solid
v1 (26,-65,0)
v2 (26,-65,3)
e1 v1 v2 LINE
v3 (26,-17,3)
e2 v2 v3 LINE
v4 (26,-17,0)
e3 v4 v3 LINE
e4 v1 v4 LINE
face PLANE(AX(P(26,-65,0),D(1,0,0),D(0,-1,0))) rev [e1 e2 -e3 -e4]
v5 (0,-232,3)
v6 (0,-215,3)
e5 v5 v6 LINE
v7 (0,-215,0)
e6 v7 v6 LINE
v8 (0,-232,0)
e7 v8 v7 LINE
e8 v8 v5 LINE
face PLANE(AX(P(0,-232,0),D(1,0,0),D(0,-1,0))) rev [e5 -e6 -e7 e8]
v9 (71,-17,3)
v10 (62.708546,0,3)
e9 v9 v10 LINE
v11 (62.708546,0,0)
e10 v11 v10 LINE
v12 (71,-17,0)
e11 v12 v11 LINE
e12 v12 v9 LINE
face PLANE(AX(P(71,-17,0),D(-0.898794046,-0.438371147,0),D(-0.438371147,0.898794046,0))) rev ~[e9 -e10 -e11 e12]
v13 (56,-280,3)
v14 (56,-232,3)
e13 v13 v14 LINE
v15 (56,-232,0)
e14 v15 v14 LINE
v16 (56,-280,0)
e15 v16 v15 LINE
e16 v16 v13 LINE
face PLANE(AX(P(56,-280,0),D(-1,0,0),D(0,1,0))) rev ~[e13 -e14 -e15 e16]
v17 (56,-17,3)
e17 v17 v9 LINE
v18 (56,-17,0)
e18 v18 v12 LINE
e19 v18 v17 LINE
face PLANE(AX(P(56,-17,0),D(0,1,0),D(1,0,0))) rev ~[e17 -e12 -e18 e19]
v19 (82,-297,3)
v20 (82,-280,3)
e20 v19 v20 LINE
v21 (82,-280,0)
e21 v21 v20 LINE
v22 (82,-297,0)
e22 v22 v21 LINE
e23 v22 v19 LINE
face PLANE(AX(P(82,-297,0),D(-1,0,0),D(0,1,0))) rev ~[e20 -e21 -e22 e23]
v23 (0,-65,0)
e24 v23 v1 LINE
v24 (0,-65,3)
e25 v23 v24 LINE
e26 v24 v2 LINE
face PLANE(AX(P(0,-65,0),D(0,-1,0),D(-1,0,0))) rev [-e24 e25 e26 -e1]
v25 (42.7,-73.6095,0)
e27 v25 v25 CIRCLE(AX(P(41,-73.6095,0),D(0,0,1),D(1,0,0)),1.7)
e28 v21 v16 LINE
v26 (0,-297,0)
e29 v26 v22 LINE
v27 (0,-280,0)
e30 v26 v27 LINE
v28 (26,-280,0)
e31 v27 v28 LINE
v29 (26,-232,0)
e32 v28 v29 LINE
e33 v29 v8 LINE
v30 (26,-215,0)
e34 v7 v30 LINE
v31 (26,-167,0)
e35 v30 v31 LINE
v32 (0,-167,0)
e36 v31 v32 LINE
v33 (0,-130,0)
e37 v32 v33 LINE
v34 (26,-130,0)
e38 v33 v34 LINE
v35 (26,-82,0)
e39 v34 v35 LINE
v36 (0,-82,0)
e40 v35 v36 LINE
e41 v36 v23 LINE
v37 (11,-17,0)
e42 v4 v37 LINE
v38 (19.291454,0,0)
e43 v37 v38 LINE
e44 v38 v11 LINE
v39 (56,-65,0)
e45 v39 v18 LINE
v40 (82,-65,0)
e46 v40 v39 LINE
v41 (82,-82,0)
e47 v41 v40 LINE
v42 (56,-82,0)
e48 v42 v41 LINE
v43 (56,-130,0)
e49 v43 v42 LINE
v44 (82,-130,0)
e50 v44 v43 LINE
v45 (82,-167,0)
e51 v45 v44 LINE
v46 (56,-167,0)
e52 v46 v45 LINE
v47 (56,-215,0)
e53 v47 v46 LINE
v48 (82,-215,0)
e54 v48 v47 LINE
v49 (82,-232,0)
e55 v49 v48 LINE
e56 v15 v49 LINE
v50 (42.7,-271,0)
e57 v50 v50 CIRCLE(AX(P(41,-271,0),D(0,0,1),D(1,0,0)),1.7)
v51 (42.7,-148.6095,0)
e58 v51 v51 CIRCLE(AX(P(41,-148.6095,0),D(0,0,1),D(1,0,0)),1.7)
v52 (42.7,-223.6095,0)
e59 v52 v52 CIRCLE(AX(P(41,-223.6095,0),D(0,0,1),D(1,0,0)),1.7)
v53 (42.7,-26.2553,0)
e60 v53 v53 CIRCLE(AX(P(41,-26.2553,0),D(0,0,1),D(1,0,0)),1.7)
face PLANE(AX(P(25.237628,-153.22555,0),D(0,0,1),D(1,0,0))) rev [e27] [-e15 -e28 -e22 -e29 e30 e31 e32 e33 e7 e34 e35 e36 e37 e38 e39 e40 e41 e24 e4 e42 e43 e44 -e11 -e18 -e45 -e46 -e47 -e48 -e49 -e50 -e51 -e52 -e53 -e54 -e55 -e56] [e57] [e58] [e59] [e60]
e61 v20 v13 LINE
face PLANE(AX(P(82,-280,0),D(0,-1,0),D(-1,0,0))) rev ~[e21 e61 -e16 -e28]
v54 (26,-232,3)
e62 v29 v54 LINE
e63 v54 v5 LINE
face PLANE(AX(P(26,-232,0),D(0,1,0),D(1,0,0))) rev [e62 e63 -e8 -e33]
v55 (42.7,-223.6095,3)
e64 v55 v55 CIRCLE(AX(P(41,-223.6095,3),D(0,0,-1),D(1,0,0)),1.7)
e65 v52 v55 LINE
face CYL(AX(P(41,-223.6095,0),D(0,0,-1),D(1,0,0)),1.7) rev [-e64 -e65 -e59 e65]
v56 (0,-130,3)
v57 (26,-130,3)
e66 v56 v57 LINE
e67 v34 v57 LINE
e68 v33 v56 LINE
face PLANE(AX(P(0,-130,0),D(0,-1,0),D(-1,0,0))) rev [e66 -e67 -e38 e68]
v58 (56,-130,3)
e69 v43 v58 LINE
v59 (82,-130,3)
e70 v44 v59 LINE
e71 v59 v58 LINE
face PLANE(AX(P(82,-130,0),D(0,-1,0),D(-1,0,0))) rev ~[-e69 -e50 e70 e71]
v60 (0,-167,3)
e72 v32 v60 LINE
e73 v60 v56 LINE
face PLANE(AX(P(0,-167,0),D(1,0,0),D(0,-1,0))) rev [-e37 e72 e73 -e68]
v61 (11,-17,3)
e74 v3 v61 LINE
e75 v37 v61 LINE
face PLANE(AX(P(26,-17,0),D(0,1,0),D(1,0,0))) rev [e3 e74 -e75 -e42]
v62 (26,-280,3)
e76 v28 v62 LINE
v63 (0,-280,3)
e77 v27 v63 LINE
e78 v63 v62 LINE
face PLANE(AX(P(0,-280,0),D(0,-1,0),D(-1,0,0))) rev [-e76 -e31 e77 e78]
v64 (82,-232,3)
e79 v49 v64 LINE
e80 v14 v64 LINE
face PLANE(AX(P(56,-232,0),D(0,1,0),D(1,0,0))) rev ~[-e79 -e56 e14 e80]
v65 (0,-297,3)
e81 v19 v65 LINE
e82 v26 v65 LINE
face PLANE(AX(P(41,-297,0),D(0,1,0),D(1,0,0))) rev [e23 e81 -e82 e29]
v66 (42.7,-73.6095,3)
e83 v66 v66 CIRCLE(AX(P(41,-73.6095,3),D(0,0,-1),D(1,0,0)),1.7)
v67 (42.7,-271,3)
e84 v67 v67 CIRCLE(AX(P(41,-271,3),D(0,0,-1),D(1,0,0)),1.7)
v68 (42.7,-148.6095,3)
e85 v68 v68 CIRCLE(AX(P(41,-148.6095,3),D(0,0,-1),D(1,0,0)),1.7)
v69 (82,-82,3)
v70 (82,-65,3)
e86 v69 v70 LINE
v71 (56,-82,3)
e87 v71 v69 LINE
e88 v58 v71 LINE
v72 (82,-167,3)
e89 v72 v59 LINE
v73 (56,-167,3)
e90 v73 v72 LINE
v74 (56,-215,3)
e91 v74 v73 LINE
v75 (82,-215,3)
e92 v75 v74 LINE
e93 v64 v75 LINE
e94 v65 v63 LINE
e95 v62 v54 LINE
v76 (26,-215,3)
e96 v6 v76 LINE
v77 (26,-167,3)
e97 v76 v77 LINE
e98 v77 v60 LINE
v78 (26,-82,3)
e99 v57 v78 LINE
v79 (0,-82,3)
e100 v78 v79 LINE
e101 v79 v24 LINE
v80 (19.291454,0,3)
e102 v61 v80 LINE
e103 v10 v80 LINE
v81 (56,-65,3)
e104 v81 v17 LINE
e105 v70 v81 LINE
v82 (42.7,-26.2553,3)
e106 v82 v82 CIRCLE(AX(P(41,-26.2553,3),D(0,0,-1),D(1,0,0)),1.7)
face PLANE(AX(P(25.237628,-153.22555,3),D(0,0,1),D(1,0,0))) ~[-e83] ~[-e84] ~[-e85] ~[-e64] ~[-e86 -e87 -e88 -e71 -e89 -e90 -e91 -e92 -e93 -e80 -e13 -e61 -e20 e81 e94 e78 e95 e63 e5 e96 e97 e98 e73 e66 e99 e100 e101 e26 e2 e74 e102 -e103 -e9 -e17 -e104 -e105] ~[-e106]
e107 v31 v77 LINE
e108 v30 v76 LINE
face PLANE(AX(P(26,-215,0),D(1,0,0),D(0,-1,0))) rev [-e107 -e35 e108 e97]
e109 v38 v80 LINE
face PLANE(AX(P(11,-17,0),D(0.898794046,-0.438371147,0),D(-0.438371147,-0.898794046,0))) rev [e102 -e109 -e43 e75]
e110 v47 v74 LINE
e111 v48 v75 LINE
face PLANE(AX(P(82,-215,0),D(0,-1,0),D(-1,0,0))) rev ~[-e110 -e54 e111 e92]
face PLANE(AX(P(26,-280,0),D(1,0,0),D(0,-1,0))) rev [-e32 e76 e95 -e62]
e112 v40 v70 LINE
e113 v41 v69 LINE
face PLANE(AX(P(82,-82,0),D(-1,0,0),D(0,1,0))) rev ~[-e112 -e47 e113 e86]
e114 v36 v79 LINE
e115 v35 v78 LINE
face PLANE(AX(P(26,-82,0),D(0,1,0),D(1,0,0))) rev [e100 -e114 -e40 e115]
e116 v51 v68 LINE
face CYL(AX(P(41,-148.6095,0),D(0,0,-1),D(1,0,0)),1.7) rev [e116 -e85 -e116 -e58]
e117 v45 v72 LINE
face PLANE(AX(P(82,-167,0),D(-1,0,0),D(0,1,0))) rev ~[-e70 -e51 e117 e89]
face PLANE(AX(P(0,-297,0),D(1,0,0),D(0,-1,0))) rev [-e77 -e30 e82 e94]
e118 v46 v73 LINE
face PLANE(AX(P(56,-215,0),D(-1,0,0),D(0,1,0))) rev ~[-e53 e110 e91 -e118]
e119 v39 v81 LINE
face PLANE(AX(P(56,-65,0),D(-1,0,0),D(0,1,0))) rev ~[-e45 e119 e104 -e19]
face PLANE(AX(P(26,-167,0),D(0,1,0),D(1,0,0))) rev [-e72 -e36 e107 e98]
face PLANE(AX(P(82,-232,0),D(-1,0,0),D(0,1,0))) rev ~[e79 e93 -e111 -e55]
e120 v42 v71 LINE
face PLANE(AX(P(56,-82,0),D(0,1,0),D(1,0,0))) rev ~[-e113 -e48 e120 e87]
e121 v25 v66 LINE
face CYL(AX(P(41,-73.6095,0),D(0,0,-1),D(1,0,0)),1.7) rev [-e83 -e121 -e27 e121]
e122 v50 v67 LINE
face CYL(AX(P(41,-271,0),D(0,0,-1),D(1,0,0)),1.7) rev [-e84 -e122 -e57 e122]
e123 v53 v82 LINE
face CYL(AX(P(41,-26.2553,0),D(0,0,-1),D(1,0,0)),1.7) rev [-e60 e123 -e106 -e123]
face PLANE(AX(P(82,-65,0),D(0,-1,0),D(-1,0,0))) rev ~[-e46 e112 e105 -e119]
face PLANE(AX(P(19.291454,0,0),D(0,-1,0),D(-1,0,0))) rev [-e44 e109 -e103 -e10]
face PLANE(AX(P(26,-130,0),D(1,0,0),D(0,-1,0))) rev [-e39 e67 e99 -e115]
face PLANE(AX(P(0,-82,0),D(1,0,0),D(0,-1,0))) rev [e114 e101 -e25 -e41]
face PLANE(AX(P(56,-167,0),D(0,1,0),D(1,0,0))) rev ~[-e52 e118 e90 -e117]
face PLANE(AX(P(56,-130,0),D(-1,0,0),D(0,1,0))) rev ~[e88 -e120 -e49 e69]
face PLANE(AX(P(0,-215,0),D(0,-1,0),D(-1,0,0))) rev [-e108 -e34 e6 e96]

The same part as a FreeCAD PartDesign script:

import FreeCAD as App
import Part
import Sketcher

V = App.Vector
Q = App.Units.Quantity

doc = App.newDocument("Part")
body = doc.addObject("PartDesign::Body", "Body")

# Sketch on XY plane
sketch1 = body.newObject("Sketcher::SketchObject", "Sketch")
sketch1.AttachmentSupport = (doc.getObject("XY_Plane"), [""])
sketch1.MapMode = "FlatFace"
sketch1.addGeometry([
    Part.LineSegment(V(0, 33, 0), V(41, 33, 0)),  # 0
    Part.LineSegment(V(41, 33, 0), V(41, 50, 0)),  # 1
    Part.LineSegment(V(41, 50, 0), V(15, 50, 0)),  # 2
    Part.LineSegment(V(15, 50, 0), V(15, 98, 0)),  # 3
    Part.LineSegment(V(15, 98, 0), V(41, 98, 0)),  # 4
    Part.LineSegment(V(41, 98, 0), V(41, 115, 0)),  # 5
    Part.LineSegment(V(41, 115, 0), V(15, 115, 0)),  # 6
    Part.LineSegment(V(15, 115, 0), V(15, 163, 0)),  # 7
    Part.LineSegment(V(15, 163, 0), V(41, 163, 0)),  # 8
    Part.LineSegment(V(41, 163, 0), V(41, 200, 0)),  # 9
    Part.LineSegment(V(41, 200, 0), V(15, 200, 0)),  # 10
    Part.LineSegment(V(15, 200, 0), V(15, 248, 0)),  # 11
    Part.LineSegment(V(15, 248, 0), V(41, 248, 0)),  # 12
    Part.LineSegment(V(41, 248, 0), V(41, 265, 0)),  # 13
    Part.LineSegment(V(41, 265, 0), V(15, 265, 0)),  # 14
    Part.LineSegment(V(15, 265, 0), V(15, 313, 0)),  # 15
    Part.LineSegment(V(15, 313, 0), V(30, 313, 0)),  # 16
    Part.LineSegment(V(30, 313, 0), V(22, 330, 0)),  # 17
    Part.LineSegment(V(22, 330, 0), V(0, 330, 0)),  # 18
    Part.LineSegment(V(0, 330, 0), V(0, 33, 0)),  # 19
], False)
sketch1.addConstraint([
    Sketcher.Constraint("Coincident", 0, 2, 1, 1),
    Sketcher.Constraint("Coincident", 1, 2, 2, 1),
    Sketcher.Constraint("Coincident", 2, 2, 3, 1),
    Sketcher.Constraint("Coincident", 3, 2, 4, 1),
    Sketcher.Constraint("Coincident", 4, 2, 5, 1),
    Sketcher.Constraint("Coincident", 5, 2, 6, 1),
    Sketcher.Constraint("Coincident", 6, 2, 7, 1),
    Sketcher.Constraint("Coincident", 7, 2, 8, 1),
    Sketcher.Constraint("Coincident", 8, 2, 9, 1),
    Sketcher.Constraint("Coincident", 9, 2, 10, 1),
    Sketcher.Constraint("Coincident", 10, 2, 11, 1),
    Sketcher.Constraint("Coincident", 11, 2, 12, 1),
    Sketcher.Constraint("Coincident", 12, 2, 13, 1),
    Sketcher.Constraint("Coincident", 13, 2, 14, 1),
    Sketcher.Constraint("Coincident", 14, 2, 15, 1),
    Sketcher.Constraint("Coincident", 15, 2, 16, 1),
    Sketcher.Constraint("Coincident", 16, 2, 17, 1),
    Sketcher.Constraint("Coincident", 17, 2, 18, 1),
    Sketcher.Constraint("Coincident", 18, 2, 19, 1),
    Sketcher.Constraint("Coincident", 19, 2, 0, 1),
    Sketcher.Constraint("Horizontal", 0),
    Sketcher.Constraint("Vertical", 1),
    Sketcher.Constraint("Horizontal", 2),
    Sketcher.Constraint("Vertical", 3),
    Sketcher.Constraint("Horizontal", 4),
    Sketcher.Constraint("Vertical", 5),
    Sketcher.Constraint("Horizontal", 6),
    Sketcher.Constraint("Vertical", 7),
    Sketcher.Constraint("Horizontal", 8),
    Sketcher.Constraint("Vertical", 9),
    Sketcher.Constraint("Horizontal", 10),
    Sketcher.Constraint("Vertical", 11),
    Sketcher.Constraint("Horizontal", 12),
    Sketcher.Constraint("Vertical", 13),
    Sketcher.Constraint("Horizontal", 14),
    Sketcher.Constraint("Vertical", 15),
    Sketcher.Constraint("Horizontal", 16),
    Sketcher.Constraint("Horizontal", 18),
    Sketcher.Constraint("Vertical", 19),
    Sketcher.Constraint("PointOnObject", 18, 2, -2),
    Sketcher.Constraint("Vertical", 1, 2, 4, 2),
    Sketcher.Constraint("Vertical", 3, 2, 6, 2),
    Sketcher.Constraint("Vertical", 5, 2, 8, 2),
    Sketcher.Constraint("Vertical", 7, 2, 10, 2),
    Sketcher.Constraint("Vertical", 9, 2, 12, 2),
    Sketcher.Constraint("Vertical", 11, 2, 14, 2),
    Sketcher.Constraint("Equal", 1, 5),
    Sketcher.Constraint("Equal", 3, 7),
    Sketcher.Constraint("Equal", 7, 11),
    Sketcher.Constraint("Equal", 5, 13),
    Sketcher.Constraint("Equal", 11, 15),
    Sketcher.Constraint("DistanceX", 0, 1, 0, 2, Q("41 mm")),
    Sketcher.Constraint("DistanceX", 2, 2, 2, 1, Q("26 mm")),
    Sketcher.Constraint("DistanceX", 16, 1, 16, 2, Q("15 mm")),
    Sketcher.Constraint("DistanceY", 1, 1, 1, 2, Q("17 mm")),
    Sketcher.Constraint("DistanceY", 3, 1, 3, 2, Q("48 mm")),
    Sketcher.Constraint("DistanceY", 9, 1, 9, 2, Q("37 mm")),
    Sketcher.Constraint("DistanceY", 19, 2, 19, 1, Q("297 mm")),
    Sketcher.Constraint("Angle", 17, Q("116 deg")),
    Sketcher.Constraint("DistanceY", -1, 1, 0, 2, Q("33 mm")),
])
pad1 = body.newObject("PartDesign::Pad", "Pad")
pad1.Profile = sketch1
pad1.Length = 3
doc.recompute()

mirrored = body.newObject("PartDesign::Mirrored", "Mirrored")
mirrored.Originals = [pad1]
mirrored.MirrorPlane = (doc.getObject("YZ_Plane"), [""])
body.Tip = mirrored

# Sketch on XY plane
sketch2 = body.newObject("Sketcher::SketchObject", "Sketch001")
sketch2.AttachmentSupport = (doc.getObject("XY_Plane"), [""])
sketch2.MapMode = "FlatFace"
sketch2.addGeometry([
    Part.Circle(V(0, 59, 0), V(0, 0, 1), 1.7),  # 0
    Part.Circle(V(0, 106.4, 0), V(0, 0, 1), 1.7),  # 1
    Part.Circle(V(0, 181.4, 0), V(0, 0, 1), 1.7),  # 2
    Part.Circle(V(0, 256.4, 0), V(0, 0, 1), 1.7),  # 3
    Part.Circle(V(0, 303.7, 0), V(0, 0, 1), 1.7),  # 4
], False)
sketch2.addConstraint([
    Sketcher.Constraint("Equal", 0, 1),
    Sketcher.Constraint("Equal", 1, 2),
    Sketcher.Constraint("Equal", 2, 3),
    Sketcher.Constraint("Equal", 3, 4),
    Sketcher.Constraint("PointOnObject", 0, 3, -2),
    Sketcher.Constraint("PointOnObject", 1, 3, -2),
    Sketcher.Constraint("PointOnObject", 2, 3, -2),
    Sketcher.Constraint("PointOnObject", 3, 3, -2),
    Sketcher.Constraint("PointOnObject", 4, 3, -2),
    Sketcher.Constraint("Diameter", 0, Q("3.4 mm")),
    Sketcher.Constraint("DistanceY", -1, 1, 0, 3, Q("59 mm")),
    Sketcher.Constraint("DistanceY", 1, 3, 2, 3, Q("75 mm")),
    Sketcher.Constraint("DistanceY", 2, 3, 3, 3, Q("75 mm")),
    Sketcher.Constraint("DistanceY", -1, 1, 1, 3, Q("106.3905 mm")),
    Sketcher.Constraint("DistanceY", -1, 1, 4, 3, Q("303.7447 mm")),
])
pocket1 = body.newObject("PartDesign::Pocket", "Pocket")
pocket1.Profile = sketch2
pocket1.Type = "ThroughAll"
pocket1.Midplane = True
body2 = doc.addObject("PartDesign::Body", "Body001")
doc.recompute()

body.Placement = App.Placement(V(41, -330, 0), App.Rotation(V(0, 0, 1), 0))
boolean = body2.newObject("PartDesign::Boolean", "Boolean")
boolean.Type = "Fuse"
boolean.addObjects([body])

doc.recompute()
